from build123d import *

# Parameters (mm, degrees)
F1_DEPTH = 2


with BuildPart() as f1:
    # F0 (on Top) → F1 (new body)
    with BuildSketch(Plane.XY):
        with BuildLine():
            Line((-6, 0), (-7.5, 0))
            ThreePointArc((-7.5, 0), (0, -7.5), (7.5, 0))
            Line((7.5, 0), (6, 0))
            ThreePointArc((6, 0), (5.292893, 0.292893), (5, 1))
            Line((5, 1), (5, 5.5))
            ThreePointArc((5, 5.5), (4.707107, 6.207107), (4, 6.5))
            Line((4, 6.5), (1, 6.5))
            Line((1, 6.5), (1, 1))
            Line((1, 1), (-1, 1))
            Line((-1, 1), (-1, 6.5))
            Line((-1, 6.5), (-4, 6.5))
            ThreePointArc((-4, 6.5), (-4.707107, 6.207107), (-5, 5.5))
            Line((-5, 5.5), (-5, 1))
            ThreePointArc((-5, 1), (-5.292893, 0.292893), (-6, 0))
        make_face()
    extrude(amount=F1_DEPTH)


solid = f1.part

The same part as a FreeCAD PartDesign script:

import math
import FreeCAD as App
import Part
import Sketcher

V = App.Vector

doc = App.newDocument("Part")
params = doc.addObject("Spreadsheet::Sheet", "Params")
for row, (alias, value) in enumerate([
    ("sketch1_radius", "0.999999 mm"),
    ("sketch1_radius2", "7.5 mm"),
    ("sketch1_width", "3 mm"),
    ("sketch1_width2", "2 mm"),
    ("sketch1_height", "4.5 mm"),
    ("pad1_length", "2 mm"),
], start=1):
    params.set(f"A{row}", alias)
    params.set(f"B{row}", "=" + value)
    params.setAlias(f"B{row}", alias)

body = doc.addObject("PartDesign::Body", "Body")

sketch1 = doc.addObject("Sketcher::SketchObject", "Sketch")
body.addObject(sketch1)
sketch1.AttachmentSupport = (doc.XY_Plane, [""])
sketch1.MapMode = "FlatFace"
sketch1.addGeometry(Part.LineSegment(V(-6, 0, 0), V(-7.5, 0, 0)), False)
sketch1.addGeometry(Part.ArcOfCircle(Part.Circle(V(0, 0, 0), V(0, 0, 1), 7.5), math.radians(180), math.radians(360)), False)
sketch1.addGeometry(Part.LineSegment(V(7.5, 0, 0), V(6, 0, 0)), False)
sketch1.addGeometry(Part.ArcOfCircle(Part.Circle(V(6, 1, 0), V(0, 0, 1), 1), math.radians(180), math.radians(270)), False)
sketch1.addGeometry(Part.LineSegment(V(5, 1, 0), V(5, 5.5, 0)), False)
sketch1.addGeometry(Part.ArcOfCircle(Part.Circle(V(4, 5.5, 0), V(0, 0, 1), 1), math.radians(0), math.radians(90)), False)
sketch1.addGeometry(Part.LineSegment(V(4, 6.5, 0), V(1, 6.5, 0)), False)
sketch1.addGeometry(Part.LineSegment(V(1, 6.5, 0), V(1, 1, 0)), False)
sketch1.addGeometry(Part.LineSegment(V(1, 1, 0), V(-1, 1, 0)), False)
sketch1.addGeometry(Part.LineSegment(V(-1, 1, 0), V(-1, 6.5, 0)), False)
sketch1.addGeometry(Part.LineSegment(V(-1, 6.5, 0), V(-4, 6.5, 0)), False)
sketch1.addGeometry(Part.ArcOfCircle(Part.Circle(V(-4, 5.5, 0), V(0, 0, 1), 1), math.radians(90), math.radians(180)), False)
sketch1.addGeometry(Part.LineSegment(V(-5, 5.5, 0), V(-5, 1, 0)), False)
sketch1.addGeometry(Part.ArcOfCircle(Part.Circle(V(-6, 1, 0), V(0, 0, 1), 1), math.radians(-90), math.radians(0)), False)
sketch1.addConstraint(Sketcher.Constraint("Coincident", 0, 2, 1, 1))
sketch1.addConstraint(Sketcher.Constraint("Coincident", 1, 2, 2, 1))
sketch1.addConstraint(Sketcher.Constraint("Tangent", 2, 2, 3, 2))
sketch1.addConstraint(Sketcher.Constraint("Tangent", 3, 1, 4, 1))
sketch1.addConstraint(Sketcher.Constraint("Tangent", 4, 2, 5, 1))
sketch1.addConstraint(Sketcher.Constraint("Tangent", 5, 2, 6, 1))
sketch1.addConstraint(Sketcher.Constraint("Coincident", 6, 2, 7, 1))
sketch1.addConstraint(Sketcher.Constraint("Coincident", 7, 2, 8, 1))
sketch1.addConstraint(Sketcher.Constraint("Coincident", 8, 2, 9, 1))
sketch1.addConstraint(Sketcher.Constraint("Coincident", 9, 2, 10, 1))
sketch1.addConstraint(Sketcher.Constraint("Tangent", 10, 2, 11, 1))
sketch1.addConstraint(Sketcher.Constraint("Tangent", 11, 2, 12, 1))
sketch1.addConstraint(Sketcher.Constraint("Tangent", 12, 2, 13, 2))
sketch1.addConstraint(Sketcher.Constraint("Tangent", 13, 1, 0, 1))
sketch1.addConstraint(Sketcher.Constraint("Horizontal", 0))
sketch1.addConstraint(Sketcher.Constraint("Horizontal", 2))
sketch1.addConstraint(Sketcher.Constraint("Vertical", 4))
sketch1.addConstraint(Sketcher.Constraint("Horizontal", 6))
sketch1.addConstraint(Sketcher.Constraint("Vertical", 7))
sketch1.addConstraint(Sketcher.Constraint("Horizontal", 8))
sketch1.addConstraint(Sketcher.Constraint("Vertical", 9))
sketch1.addConstraint(Sketcher.Constraint("Horizontal", 10))
sketch1.addConstraint(Sketcher.Constraint("Vertical", 12))
sketch1.addConstraint(Sketcher.Constraint("Coincident", 1, 3, -1, 1))
sketch1.addConstraint(Sketcher.Constraint("Equal", 3, 5))
sketch1.addConstraint(Sketcher.Constraint("Equal", 5, 11))
sketch1.addConstraint(Sketcher.Constraint("Equal", 11, 13))
sketch1.addConstraint(Sketcher.Constraint("Symmetric", 2, 2, 13, 1, -1, 1))
sketch1.addConstraint(Sketcher.Constraint("Symmetric", 6, 2, 9, 2, -2))
sketch1.addConstraint(Sketcher.Constraint("PointOnObject", 0, 2, -1))
sketch1.addConstraint(Sketcher.Constraint("Horizontal", 3, 1, 7, 2))
sketch1.addConstraint(Sketcher.Constraint("Radius", 3, 0.999999))
sketch1.addConstraint(Sketcher.Constraint("Radius", 1, 7.5))
sketch1.addConstraint(Sketcher.Constraint("DistanceX", 6, 2, 6, 1, 3.0))
sketch1.addConstraint(Sketcher.Constraint("DistanceX", 8, 2, 8, 1, 2.0))
sketch1.addConstraint(Sketcher.Constraint("DistanceY", 4, 1, 4, 2, 4.5))
sketch1.setExpression("Constraints[31]", "Params.sketch1_radius")
sketch1.setExpression("Constraints[32]", "Params.sketch1_radius2")
sketch1.setExpression("Constraints[33]", "Params.sketch1_width")
sketch1.setExpression("Constraints[34]", "Params.sketch1_width2")
sketch1.setExpression("Constraints[35]", "Params.sketch1_height")
pad1 = doc.addObject("PartDesign::Pad", "Pad")
body.addObject(pad1)
pad1.Profile = sketch1
pad1.setExpression("Length", "Params.pad1_length")

doc.recompute()
